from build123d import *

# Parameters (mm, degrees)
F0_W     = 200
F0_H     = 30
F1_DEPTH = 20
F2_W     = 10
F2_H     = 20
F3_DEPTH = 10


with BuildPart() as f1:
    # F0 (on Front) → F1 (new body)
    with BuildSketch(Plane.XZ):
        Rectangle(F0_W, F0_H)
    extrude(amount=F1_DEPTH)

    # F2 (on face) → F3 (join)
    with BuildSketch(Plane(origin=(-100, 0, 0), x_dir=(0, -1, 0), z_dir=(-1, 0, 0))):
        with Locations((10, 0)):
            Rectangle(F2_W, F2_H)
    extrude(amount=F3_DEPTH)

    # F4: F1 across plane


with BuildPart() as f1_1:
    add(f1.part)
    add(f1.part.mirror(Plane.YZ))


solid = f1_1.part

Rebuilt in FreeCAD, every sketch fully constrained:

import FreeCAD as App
import Part
import Sketcher
from FreeCAD import Vector
Q = App.Units.Quantity


def add_polygon(sketch, points):
    """Adds a closed chain of lines whose ends are joined by coincident constraints."""
    first, n = sketch.GeometryCount, len(points)
    for a, b in zip(points, points[1:] + points[:1]):
        sketch.addGeometry(Part.LineSegment(App.Vector(*a, 0), App.Vector(*b, 0)), False)
    for i in range(n):
        sketch.addConstraint(Sketcher.Constraint("Coincident", first + i, 2, first + (i + 1) % n, 1))

doc = App.newDocument("Part")
body = doc.addObject("PartDesign::Body", "Body")

sketch1 = doc.addObject("Sketcher::SketchObject", "Sketch")
body.addObject(sketch1)
sketch1.AttachmentSupport = (doc.XZ_Plane, [""])
sketch1.MapMode = "FlatFace"
add_polygon(sketch1, [(-100, 15), (-100, -15), (100, -15), (100, 15)])
sketch1.addConstraint([
    Sketcher.Constraint("Vertical", 0),
    Sketcher.Constraint("Horizontal", 1),
    Sketcher.Constraint("Vertical", 2),
    Sketcher.Constraint("Horizontal", 3),
    Sketcher.Constraint("Symmetric", 0, 2, 2, 2, -1, 1),
    Sketcher.Constraint("DistanceX", 1, 1, 1, 2, Q("200 mm")),
    Sketcher.Constraint("DistanceY", 0, 2, 0, 1, Q("30 mm")),
])
pad1 = doc.addObject("PartDesign::Pad", "Pad")
body.addObject(pad1)
pad1.Profile = sketch1
pad1.Length = 20

sketch2 = doc.addObject("Sketcher::SketchObject", "Sketch001")
body.addObject(sketch2)
sketch2.AttachmentSupport = (doc.YZ_Plane, [""])
sketch2.MapMode = "FlatFace"
sketch2.AttachmentOffset = App.Placement(Vector(0, 0, -100), App.Rotation())
add_polygon(sketch2, [(-5, 10), (-5, -10), (-15, -10), (-15, 10)])
sketch2.addConstraint([
    Sketcher.Constraint("Vertical", 0),
    Sketcher.Constraint("Horizontal", 1),
    Sketcher.Constraint("Vertical", 2),
    Sketcher.Constraint("Horizontal", 3),
    Sketcher.Constraint("DistanceX", 1, 2, 1, 1, Q("10 mm")),
    Sketcher.Constraint("DistanceY", 0, 2, 0, 1, Q("20 mm")),
    Sketcher.Constraint("DistanceX", 0, 2, -1, 1, Q("5 mm")),
    Sketcher.Constraint("DistanceY", 0, 2, -1, 1, Q("10 mm")),
])
pad2 = doc.addObject("PartDesign::Pad", "Pad001")
body.addObject(pad2)
pad2.Profile = sketch2
pad2.Length = 10
pad2.Reversed = True
body2 = doc.addObject("PartDesign::Body", "Body001")
doc.recompute()

body2.BaseFeature = body
doc.recompute()

mirroring = doc.addObject("Part::Mirroring", "Mirroring")
mirroring.Source = body
mirroring.Base = Vector(0, 0, 0)
mirroring.Normal = Vector(1, 0, 0)
body3 = doc.addObject("PartDesign::Body", "Body002")
body3.BaseFeature = mirroring
boolean = doc.addObject("PartDesign::Boolean", "Boolean")
body2.addObject(boolean)
boolean.Type = "Fuse"
boolean.addObjects([body3])
doc.recompute()
mirroring.Visibility = False

doc.recompute()
